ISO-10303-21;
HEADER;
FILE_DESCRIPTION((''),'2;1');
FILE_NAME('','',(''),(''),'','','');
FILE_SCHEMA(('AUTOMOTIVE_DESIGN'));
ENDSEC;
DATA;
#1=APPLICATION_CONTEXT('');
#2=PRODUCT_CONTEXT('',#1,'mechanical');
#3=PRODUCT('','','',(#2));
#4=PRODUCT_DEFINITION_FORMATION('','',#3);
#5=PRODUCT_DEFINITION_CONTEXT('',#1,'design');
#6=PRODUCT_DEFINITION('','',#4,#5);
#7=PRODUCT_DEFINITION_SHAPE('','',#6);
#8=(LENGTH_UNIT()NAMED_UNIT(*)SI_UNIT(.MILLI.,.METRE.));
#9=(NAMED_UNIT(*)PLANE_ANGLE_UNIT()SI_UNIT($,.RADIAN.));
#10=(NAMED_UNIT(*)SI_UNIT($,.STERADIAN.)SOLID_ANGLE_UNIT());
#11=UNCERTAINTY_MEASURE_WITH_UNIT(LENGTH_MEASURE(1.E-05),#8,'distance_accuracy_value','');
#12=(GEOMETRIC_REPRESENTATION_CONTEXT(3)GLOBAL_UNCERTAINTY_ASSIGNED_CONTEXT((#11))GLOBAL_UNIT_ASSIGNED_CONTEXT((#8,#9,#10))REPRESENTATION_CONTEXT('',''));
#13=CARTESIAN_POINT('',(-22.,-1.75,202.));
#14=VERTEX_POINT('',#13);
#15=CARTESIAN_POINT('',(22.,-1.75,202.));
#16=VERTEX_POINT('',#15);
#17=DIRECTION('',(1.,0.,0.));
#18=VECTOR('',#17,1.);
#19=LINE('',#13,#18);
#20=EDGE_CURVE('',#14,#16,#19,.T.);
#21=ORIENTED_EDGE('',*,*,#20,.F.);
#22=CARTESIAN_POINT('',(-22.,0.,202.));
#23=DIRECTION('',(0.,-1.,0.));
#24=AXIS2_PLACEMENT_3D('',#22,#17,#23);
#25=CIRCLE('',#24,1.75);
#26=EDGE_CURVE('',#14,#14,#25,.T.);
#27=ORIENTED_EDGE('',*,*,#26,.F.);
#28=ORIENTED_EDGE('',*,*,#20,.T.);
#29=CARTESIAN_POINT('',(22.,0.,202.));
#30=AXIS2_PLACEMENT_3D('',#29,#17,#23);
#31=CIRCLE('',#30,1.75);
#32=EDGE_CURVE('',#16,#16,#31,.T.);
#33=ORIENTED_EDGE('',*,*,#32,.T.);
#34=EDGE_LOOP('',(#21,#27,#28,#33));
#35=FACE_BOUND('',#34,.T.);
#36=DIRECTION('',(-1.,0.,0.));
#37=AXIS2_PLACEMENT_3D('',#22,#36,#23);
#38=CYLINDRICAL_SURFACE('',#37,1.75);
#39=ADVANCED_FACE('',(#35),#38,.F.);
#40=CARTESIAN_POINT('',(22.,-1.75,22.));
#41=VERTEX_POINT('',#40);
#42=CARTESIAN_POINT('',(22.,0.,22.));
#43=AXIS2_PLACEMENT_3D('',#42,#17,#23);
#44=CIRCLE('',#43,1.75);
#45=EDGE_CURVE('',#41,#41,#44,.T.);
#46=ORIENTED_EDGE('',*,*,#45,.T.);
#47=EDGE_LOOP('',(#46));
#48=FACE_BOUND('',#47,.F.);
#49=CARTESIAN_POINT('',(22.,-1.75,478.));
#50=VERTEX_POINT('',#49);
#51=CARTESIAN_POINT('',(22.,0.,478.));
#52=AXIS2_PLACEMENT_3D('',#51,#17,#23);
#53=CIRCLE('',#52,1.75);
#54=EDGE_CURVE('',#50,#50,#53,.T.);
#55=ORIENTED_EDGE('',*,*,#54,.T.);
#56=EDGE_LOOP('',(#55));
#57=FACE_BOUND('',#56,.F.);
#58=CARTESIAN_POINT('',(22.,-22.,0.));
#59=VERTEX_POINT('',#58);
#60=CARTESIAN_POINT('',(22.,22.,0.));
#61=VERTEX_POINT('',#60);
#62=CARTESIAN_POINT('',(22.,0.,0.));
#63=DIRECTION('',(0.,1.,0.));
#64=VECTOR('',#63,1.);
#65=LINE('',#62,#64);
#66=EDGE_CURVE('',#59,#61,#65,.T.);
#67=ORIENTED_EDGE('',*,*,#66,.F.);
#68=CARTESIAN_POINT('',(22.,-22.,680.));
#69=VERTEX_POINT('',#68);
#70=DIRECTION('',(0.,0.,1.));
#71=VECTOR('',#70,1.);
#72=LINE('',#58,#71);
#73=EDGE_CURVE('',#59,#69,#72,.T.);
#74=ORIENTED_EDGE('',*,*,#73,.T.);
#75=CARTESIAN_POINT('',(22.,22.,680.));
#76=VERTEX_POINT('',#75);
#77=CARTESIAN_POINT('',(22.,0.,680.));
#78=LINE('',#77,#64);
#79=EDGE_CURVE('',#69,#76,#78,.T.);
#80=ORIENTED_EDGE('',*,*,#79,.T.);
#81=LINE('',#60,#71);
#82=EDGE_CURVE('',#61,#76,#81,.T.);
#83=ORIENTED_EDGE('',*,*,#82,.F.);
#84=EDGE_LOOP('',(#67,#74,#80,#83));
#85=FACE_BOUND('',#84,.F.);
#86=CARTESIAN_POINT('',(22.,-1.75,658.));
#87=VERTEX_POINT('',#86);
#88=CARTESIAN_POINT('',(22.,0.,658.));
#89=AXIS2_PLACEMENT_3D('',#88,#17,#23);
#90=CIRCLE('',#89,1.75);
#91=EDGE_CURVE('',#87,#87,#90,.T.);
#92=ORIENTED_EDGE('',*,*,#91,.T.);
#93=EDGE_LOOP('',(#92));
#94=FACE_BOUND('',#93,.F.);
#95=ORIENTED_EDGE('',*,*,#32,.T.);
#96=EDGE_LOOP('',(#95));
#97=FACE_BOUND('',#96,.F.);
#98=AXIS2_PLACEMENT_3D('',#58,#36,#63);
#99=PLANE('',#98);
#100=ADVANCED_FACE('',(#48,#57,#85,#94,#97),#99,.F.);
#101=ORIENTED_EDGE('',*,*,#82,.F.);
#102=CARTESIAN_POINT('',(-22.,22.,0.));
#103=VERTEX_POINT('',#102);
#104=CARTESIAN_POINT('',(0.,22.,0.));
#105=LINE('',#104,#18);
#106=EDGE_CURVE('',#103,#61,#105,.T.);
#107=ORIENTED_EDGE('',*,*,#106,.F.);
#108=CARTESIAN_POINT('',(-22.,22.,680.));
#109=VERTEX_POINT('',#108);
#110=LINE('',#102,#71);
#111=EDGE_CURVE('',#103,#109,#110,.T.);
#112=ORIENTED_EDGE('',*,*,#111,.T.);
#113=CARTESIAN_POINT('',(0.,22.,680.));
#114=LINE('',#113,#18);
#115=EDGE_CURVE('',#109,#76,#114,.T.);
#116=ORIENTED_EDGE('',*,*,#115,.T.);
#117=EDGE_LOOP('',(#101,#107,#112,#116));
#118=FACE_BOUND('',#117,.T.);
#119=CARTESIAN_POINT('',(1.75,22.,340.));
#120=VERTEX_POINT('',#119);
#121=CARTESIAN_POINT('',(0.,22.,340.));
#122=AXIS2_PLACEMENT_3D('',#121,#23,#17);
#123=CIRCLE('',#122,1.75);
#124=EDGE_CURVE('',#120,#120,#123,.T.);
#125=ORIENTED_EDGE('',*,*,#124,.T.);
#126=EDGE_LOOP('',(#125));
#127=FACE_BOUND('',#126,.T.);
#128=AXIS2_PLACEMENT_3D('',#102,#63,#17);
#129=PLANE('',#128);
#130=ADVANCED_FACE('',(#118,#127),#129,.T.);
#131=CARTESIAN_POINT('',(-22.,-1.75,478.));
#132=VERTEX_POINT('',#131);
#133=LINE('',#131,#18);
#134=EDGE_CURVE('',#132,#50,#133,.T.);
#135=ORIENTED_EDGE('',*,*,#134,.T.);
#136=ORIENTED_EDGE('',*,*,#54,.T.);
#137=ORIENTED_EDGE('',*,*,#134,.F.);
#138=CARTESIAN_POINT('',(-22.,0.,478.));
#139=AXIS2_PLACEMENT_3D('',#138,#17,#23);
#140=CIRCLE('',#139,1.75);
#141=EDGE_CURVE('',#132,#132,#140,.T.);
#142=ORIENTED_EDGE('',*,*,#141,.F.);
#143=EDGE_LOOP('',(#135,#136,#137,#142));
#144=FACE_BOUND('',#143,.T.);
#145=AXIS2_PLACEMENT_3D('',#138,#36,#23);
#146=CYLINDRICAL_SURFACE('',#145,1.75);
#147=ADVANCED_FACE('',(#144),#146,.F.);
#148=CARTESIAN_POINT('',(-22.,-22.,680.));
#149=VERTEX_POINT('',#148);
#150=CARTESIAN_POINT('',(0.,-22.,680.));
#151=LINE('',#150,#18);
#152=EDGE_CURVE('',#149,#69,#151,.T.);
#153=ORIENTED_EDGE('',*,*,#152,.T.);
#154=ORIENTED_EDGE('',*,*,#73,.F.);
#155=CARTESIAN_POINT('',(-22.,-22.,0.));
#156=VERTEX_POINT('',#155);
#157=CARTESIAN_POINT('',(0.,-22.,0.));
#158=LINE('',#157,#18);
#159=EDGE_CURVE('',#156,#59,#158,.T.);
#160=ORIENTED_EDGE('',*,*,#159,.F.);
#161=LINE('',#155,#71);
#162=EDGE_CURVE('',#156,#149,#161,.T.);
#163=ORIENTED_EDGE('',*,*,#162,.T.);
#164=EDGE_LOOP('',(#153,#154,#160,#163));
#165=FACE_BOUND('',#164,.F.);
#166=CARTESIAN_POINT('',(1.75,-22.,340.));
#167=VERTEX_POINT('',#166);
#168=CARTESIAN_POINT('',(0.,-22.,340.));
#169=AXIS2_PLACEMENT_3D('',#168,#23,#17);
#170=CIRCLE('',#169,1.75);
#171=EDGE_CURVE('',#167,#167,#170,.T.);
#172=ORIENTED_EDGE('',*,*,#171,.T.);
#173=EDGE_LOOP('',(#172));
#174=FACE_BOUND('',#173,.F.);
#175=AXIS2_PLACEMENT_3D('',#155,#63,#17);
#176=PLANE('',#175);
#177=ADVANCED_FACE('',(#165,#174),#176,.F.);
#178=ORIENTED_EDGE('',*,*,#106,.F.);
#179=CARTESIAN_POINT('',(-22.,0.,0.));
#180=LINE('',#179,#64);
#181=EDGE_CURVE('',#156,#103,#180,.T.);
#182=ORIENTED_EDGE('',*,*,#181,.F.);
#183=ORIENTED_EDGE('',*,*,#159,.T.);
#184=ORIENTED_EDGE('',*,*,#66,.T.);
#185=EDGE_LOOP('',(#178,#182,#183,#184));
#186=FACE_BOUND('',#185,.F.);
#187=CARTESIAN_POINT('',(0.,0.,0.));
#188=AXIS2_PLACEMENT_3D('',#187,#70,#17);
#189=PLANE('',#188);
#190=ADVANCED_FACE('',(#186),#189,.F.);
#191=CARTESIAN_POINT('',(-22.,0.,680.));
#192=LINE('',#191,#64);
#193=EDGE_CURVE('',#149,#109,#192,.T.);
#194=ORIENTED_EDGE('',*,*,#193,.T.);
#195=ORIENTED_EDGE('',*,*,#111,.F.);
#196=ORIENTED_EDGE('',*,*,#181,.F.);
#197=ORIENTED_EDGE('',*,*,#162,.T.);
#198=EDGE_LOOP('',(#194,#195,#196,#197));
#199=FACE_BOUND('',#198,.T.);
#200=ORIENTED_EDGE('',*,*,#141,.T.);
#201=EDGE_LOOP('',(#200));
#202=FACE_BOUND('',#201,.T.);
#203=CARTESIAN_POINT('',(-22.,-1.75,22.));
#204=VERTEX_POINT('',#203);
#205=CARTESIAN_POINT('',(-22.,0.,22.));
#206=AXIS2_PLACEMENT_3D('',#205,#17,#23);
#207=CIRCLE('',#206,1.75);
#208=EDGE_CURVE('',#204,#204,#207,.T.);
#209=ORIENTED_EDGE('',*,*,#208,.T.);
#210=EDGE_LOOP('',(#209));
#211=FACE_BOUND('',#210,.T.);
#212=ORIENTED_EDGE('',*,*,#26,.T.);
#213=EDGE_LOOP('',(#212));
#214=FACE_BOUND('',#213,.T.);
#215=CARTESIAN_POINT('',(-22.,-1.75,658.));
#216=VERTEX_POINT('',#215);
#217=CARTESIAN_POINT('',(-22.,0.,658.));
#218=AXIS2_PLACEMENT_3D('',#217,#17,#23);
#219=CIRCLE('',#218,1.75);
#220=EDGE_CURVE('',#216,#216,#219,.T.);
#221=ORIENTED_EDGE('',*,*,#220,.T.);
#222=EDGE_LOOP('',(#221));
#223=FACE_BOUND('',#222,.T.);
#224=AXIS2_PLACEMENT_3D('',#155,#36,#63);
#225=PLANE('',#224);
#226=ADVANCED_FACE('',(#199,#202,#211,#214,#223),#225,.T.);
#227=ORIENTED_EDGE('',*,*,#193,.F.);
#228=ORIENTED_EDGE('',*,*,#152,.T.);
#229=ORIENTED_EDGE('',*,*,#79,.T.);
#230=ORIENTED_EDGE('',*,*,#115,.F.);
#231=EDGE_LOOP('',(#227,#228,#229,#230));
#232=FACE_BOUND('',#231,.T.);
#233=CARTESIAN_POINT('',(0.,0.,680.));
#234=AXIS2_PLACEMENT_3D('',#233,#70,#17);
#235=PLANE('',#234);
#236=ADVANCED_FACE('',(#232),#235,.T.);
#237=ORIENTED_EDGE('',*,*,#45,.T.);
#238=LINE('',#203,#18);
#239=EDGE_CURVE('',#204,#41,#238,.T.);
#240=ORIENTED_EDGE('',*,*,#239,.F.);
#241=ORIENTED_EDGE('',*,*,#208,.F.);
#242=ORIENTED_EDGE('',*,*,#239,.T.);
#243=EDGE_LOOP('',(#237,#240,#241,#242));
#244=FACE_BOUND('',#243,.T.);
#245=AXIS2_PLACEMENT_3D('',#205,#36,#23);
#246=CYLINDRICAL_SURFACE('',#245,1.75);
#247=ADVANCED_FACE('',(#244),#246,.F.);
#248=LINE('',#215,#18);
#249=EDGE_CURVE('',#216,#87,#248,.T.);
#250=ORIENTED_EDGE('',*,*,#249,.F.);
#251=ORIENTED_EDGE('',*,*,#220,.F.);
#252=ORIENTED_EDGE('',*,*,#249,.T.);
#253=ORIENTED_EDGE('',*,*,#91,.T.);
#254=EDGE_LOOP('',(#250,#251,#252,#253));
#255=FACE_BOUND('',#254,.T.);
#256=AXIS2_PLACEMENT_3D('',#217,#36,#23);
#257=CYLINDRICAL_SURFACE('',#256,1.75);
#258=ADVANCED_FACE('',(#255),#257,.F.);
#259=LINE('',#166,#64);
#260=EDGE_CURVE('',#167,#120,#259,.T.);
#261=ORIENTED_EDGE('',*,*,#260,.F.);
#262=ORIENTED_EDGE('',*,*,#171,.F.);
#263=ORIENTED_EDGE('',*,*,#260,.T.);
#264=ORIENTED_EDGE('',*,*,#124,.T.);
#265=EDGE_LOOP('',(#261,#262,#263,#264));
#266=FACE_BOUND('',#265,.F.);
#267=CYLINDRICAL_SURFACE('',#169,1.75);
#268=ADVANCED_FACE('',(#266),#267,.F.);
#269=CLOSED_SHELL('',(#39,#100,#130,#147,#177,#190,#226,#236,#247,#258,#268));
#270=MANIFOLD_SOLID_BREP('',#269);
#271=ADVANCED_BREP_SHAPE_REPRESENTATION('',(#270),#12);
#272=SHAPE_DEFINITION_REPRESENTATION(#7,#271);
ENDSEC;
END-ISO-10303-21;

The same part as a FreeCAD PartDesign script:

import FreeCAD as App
import Part
import Sketcher
from FreeCAD import Vector


def add_polygon(sketch, points):
    """Adds a closed chain of lines whose ends are joined by coincident constraints."""
    first, n = sketch.GeometryCount, len(points)
    for a, b in zip(points, points[1:] + points[:1]):
        sketch.addGeometry(Part.LineSegment(App.Vector(*a, 0), App.Vector(*b, 0)), False)
    for i in range(n):
        sketch.addConstraint(Sketcher.Constraint("Coincident", first + i, 2, first + (i + 1) % n, 1))

doc = App.newDocument("Part")
body = doc.addObject("PartDesign::Body", "Body")

sketch1 = body.newObject("Sketcher::SketchObject", "Sketch")
sketch1.AttachmentSupport = (doc.getObject("XY_Plane"), [""])
sketch1.MapMode = "FlatFace"
add_polygon(sketch1, [(-22, 22), (-22, -22), (22, -22), (22, 22)])
sketch1.addConstraint(Sketcher.Constraint("Vertical", 0))
sketch1.addConstraint(Sketcher.Constraint("Horizontal", 1))
sketch1.addConstraint(Sketcher.Constraint("Vertical", 2))
sketch1.addConstraint(Sketcher.Constraint("Horizontal", 3))
sketch1.addConstraint(Sketcher.Constraint("Symmetric", 0, 2, 2, 2, -1, 1))
sketch1.addConstraint(Sketcher.Constraint("Equal", 3, 0))
sketch1.addConstraint(Sketcher.Constraint("DistanceX", 1, 1, 1, 2, 44.0))
pad1 = body.newObject("PartDesign::Pad", "Pad")
pad1.Profile = sketch1
pad1.Length = 680

sketch2 = body.newObject("Sketcher::SketchObject", "Sketch001")
sketch2.AttachmentSupport = (doc.getObject("YZ_Plane"), [""])
sketch2.MapMode = "FlatFace"
sketch2.AttachmentOffset = App.Placement(Vector(0, 0, -22), App.Rotation())
sketch2.addGeometry(Part.Circle(Vector(0, 22, 0), Vector(0, 0, 1), 1.75), False)
sketch2.addGeometry(Part.Circle(Vector(0, 658, 0), Vector(0, 0, 1), 1.75), False)
sketch2.addGeometry(Part.Circle(Vector(0, 202, 0), Vector(0, 0, 1), 1.75), False)
sketch2.addGeometry(Part.Circle(Vector(0, 478, 0), Vector(0, 0, 1), 1.75), False)
sketch2.addConstraint(Sketcher.Constraint("Equal", 0, 1))
sketch2.addConstraint(Sketcher.Constraint("Equal", 1, 2))
sketch2.addConstraint(Sketcher.Constraint("Equal", 2, 3))
sketch2.addConstraint(Sketcher.Constraint("PointOnObject", 0, 3, -2))
sketch2.addConstraint(Sketcher.Constraint("PointOnObject", 1, 3, -2))
sketch2.addConstraint(Sketcher.Constraint("PointOnObject", 2, 3, -2))
sketch2.addConstraint(Sketcher.Constraint("PointOnObject", 3, 3, -2))
sketch2.addConstraint(Sketcher.Constraint("Diameter", 0, 3.5))
sketch2.addConstraint(Sketcher.Constraint("DistanceY", -1, 1, 0, 3, 22.0))
sketch2.addConstraint(Sketcher.Constraint("DistanceY", -1, 1, 1, 3, 658.0))
sketch2.addConstraint(Sketcher.Constraint("DistanceY", -1, 1, 2, 3, 202.0))
sketch2.addConstraint(Sketcher.Constraint("DistanceY", -1, 1, 3, 3, 478.0))
pocket1 = body.newObject("PartDesign::Pocket", "Pocket")
pocket1.Profile = sketch2
pocket1.Length = 44
pocket1.Reversed = True

sketch3 = body.newObject("Sketcher::SketchObject", "Sketch002")
sketch3.AttachmentSupport = (doc.getObject("XZ_Plane"), [""])
sketch3.MapMode = "FlatFace"
sketch3.AttachmentOffset = App.Placement(Vector(0, 0, 22), App.Rotation())
sketch3.addGeometry(Part.Circle(Vector(0, 340, 0), Vector(0, 0, 1), 1.75), False)
sketch3.addConstraint(Sketcher.Constraint("PointOnObject", 0, 3, -2))
sketch3.addConstraint(Sketcher.Constraint("Diameter", 0, 3.5))
sketch3.addConstraint(Sketcher.Constraint("DistanceY", -1, 1, 0, 3, 340.0))
pocket2 = body.newObject("PartDesign::Pocket", "Pocket001")
pocket2.Profile = sketch3
pocket2.Length = 60

doc.recompute()
